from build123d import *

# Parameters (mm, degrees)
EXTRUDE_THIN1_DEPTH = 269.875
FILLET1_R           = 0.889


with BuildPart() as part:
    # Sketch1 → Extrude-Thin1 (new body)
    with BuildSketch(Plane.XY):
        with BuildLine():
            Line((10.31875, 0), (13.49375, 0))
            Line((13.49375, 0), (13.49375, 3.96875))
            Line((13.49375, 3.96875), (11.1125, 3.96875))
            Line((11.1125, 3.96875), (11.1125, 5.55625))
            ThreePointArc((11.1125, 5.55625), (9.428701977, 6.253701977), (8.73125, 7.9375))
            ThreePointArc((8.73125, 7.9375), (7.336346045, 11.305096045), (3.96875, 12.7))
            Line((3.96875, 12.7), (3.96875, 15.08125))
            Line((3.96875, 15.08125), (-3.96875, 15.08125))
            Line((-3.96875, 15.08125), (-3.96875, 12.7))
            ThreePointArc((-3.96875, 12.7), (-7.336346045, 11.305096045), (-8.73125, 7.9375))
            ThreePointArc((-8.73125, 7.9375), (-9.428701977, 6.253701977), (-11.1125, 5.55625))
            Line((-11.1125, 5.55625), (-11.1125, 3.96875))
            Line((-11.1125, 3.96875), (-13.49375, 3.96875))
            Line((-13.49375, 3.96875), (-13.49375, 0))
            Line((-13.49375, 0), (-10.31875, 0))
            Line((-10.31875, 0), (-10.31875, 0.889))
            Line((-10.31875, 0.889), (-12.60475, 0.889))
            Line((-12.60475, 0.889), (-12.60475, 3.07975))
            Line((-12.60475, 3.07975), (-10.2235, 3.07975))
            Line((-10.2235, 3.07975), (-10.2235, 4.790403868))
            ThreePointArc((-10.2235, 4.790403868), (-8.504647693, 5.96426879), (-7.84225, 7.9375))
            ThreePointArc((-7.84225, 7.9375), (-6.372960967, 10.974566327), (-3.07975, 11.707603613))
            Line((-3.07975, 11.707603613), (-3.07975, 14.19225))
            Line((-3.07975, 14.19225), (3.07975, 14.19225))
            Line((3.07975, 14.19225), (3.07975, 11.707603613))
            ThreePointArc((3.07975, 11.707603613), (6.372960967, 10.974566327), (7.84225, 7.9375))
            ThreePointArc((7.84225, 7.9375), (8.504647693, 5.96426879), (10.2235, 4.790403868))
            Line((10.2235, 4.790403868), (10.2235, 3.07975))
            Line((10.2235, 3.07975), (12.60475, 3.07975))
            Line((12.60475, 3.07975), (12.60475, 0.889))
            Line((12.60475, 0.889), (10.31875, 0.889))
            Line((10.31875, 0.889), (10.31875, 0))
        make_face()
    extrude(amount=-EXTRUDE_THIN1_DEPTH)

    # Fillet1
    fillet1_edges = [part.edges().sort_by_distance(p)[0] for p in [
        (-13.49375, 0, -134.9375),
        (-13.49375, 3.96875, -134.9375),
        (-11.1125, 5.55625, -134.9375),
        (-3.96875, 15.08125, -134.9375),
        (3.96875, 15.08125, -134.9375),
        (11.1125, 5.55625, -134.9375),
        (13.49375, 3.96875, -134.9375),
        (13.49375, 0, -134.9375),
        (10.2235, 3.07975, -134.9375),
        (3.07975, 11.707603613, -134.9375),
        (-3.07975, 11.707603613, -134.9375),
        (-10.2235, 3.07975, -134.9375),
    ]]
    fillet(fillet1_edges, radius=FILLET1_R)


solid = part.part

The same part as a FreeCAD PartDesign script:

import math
import FreeCAD as App
import Part
import Sketcher
Q = App.Units.Quantity


def edges_at(feature, points):
    """Names of the edges that pass closest to the given points."""
    edges = feature.Shape.Edges
    near = lambda p: min(range(len(edges)), key=lambda i: edges[i].distToShape(Part.Vertex(*p))[0])
    return sorted({f"Edge{near(p) + 1}" for p in points})

doc = App.newDocument("Part")
params = doc.addObject("Spreadsheet::Sheet", "Params")
for row, (alias, value) in enumerate([
    ("sketch1_radius", "0.09375 in"),
    ("sketch1_radius2", "0.1875 in"),
    ("sketch1_width", "0.09 in"),
    ("sketch1_width2", "0.125 in"),
    ("sketch1_width3", "0.09375 in"),
    ("pad1_length", "10.625 in"),
    ("fillet_radius", "0.035 in"),
], start=1):
    params.set(f"A{row}", alias)
    params.set(f"B{row}", "=" + value)
    params.setAlias(f"B{row}", alias)

body = doc.addObject("PartDesign::Body", "Body")

# Sketch on XY plane
sketch1 = body.newObject("Sketcher::SketchObject", "Sketch")
sketch1.AttachmentSupport = (doc.getObject("XY_Plane"), [""])
sketch1.MapMode = "FlatFace"
sketch1.addGeometry(Part.LineSegment(App.Vector(10.3, 0, 0), App.Vector(13.5, 0, 0)), False)
sketch1.addGeometry(Part.LineSegment(App.Vector(13.5, 0, 0), App.Vector(13.5, 4, 0)), False)
sketch1.addGeometry(Part.LineSegment(App.Vector(13.5, 4, 0), App.Vector(11.1, 4, 0)), False)
sketch1.addGeometry(Part.LineSegment(App.Vector(11.1, 4, 0), App.Vector(11.1, 5.6, 0)), False)
sketch1.addGeometry(Part.ArcOfCircle(Part.Circle(App.Vector(11.1, 7.9, 0), App.Vector(0, 0, 1), 2.4), math.radians(180), math.radians(270)), False)
sketch1.addGeometry(Part.ArcOfCircle(Part.Circle(App.Vector(4, 7.9, 0), App.Vector(0, 0, 1), 4.8), math.radians(0), math.radians(90)), False)
sketch1.addGeometry(Part.LineSegment(App.Vector(4, 12.7, 0), App.Vector(4, 15.1, 0)), False)
sketch1.addGeometry(Part.LineSegment(App.Vector(4, 15.1, 0), App.Vector(-4, 15.1, 0)), False)
sketch1.addGeometry(Part.LineSegment(App.Vector(-4, 15.1, 0), App.Vector(-4, 12.7, 0)), False)
sketch1.addGeometry(Part.ArcOfCircle(Part.Circle(App.Vector(-4, 7.9, 0), App.Vector(0, 0, 1), 4.8), math.radians(90), math.radians(180)), False)
sketch1.addGeometry(Part.ArcOfCircle(Part.Circle(App.Vector(-11.1, 7.9, 0), App.Vector(0, 0, 1), 2.4), math.radians(-90), math.radians(0)), False)
sketch1.addGeometry(Part.LineSegment(App.Vector(-11.1, 5.6, 0), App.Vector(-11.1, 4, 0)), False)
sketch1.addGeometry(Part.LineSegment(App.Vector(-11.1, 4, 0), App.Vector(-13.5, 4, 0)), False)
sketch1.addGeometry(Part.LineSegment(App.Vector(-13.5, 4, 0), App.Vector(-13.5, 0, 0)), False)
sketch1.addGeometry(Part.LineSegment(App.Vector(-13.5, 0, 0), App.Vector(-10.3, 0, 0)), False)
sketch1.addGeometry(Part.LineSegment(App.Vector(-10.3, 0, 0), App.Vector(-10.3, 0.9, 0)), False)
sketch1.addGeometry(Part.LineSegment(App.Vector(-10.3, 0.9, 0), App.Vector(-12.6, 0.9, 0)), False)
sketch1.addGeometry(Part.LineSegment(App.Vector(-12.6, 0.9, 0), App.Vector(-12.6, 3.1, 0)), False)
sketch1.addGeometry(Part.LineSegment(App.Vector(-12.6, 3.1, 0), App.Vector(-10.2, 3.1, 0)), False)
sketch1.addGeometry(Part.LineSegment(App.Vector(-10.2, 3.1, 0), App.Vector(-10.2, 4.8, 0)), False)
sketch1.addGeometry(Part.ArcOfCircle(Part.Circle(App.Vector(-11.1, 7.9, 0), App.Vector(0, 0, 1), 3.3), math.radians(-74), math.radians(0)), False)
sketch1.addGeometry(Part.ArcOfCircle(Part.Circle(App.Vector(-4, 7.9, 0), App.Vector(0, 0, 1), 3.9), math.radians(77), math.radians(180)), False)
sketch1.addGeometry(Part.LineSegment(App.Vector(-3.1, 11.7, 0), App.Vector(-3.1, 14.2, 0)), False)
sketch1.addGeometry(Part.LineSegment(App.Vector(-3.1, 14.2, 0), App.Vector(3.1, 14.2, 0)), False)
sketch1.addGeometry(Part.LineSegment(App.Vector(3.1, 14.2, 0), App.Vector(3.1, 11.7, 0)), False)
sketch1.addGeometry(Part.ArcOfCircle(Part.Circle(App.Vector(4, 7.9, 0), App.Vector(0, 0, 1), 3.9), math.radians(0), math.radians(103)), False)
sketch1.addGeometry(Part.ArcOfCircle(Part.Circle(App.Vector(11.1, 7.9, 0), App.Vector(0, 0, 1), 3.3), math.radians(180), math.radians(254)), False)
sketch1.addGeometry(Part.LineSegment(App.Vector(10.2, 4.8, 0), App.Vector(10.2, 3.1, 0)), False)
sketch1.addGeometry(Part.LineSegment(App.Vector(10.2, 3.1, 0), App.Vector(12.6, 3.1, 0)), False)
sketch1.addGeometry(Part.LineSegment(App.Vector(12.6, 3.1, 0), App.Vector(12.6, 0.9, 0)), False)
sketch1.addGeometry(Part.LineSegment(App.Vector(12.6, 0.9, 0), App.Vector(10.3, 0.9, 0)), False)
sketch1.addGeometry(Part.LineSegment(App.Vector(10.3, 0.9, 0), App.Vector(10.3, 0, 0)), False)
sketch1.addConstraint(Sketcher.Constraint("Coincident", 0, 2, 1, 1))
sketch1.addConstraint(Sketcher.Constraint("Coincident", 1, 2, 2, 1))
sketch1.addConstraint(Sketcher.Constraint("Coincident", 2, 2, 3, 1))
sketch1.addConstraint(Sketcher.Constraint("Coincident", 3, 2, 4, 2))
sketch1.addConstraint(Sketcher.Constraint("Tangent", 4, 1, 5, 1))
sketch1.addConstraint(Sketcher.Constraint("Coincident", 5, 2, 6, 1))
sketch1.addConstraint(Sketcher.Constraint("Coincident", 6, 2, 7, 1))
sketch1.addConstraint(Sketcher.Constraint("Coincident", 7, 2, 8, 1))
sketch1.addConstraint(Sketcher.Constraint("Coincident", 8, 2, 9, 1))
sketch1.addConstraint(Sketcher.Constraint("Tangent", 9, 2, 10, 2))
sketch1.addConstraint(Sketcher.Constraint("Coincident", 10, 1, 11, 1))
sketch1.addConstraint(Sketcher.Constraint("Coincident", 11, 2, 12, 1))
sketch1.addConstraint(Sketcher.Constraint("Coincident", 12, 2, 13, 1))
sketch1.addConstraint(Sketcher.Constraint("Coincident", 13, 2, 14, 1))
sketch1.addConstraint(Sketcher.Constraint("Coincident", 14, 2, 15, 1))
sketch1.addConstraint(Sketcher.Constraint("Coincident", 15, 2, 16, 1))
sketch1.addConstraint(Sketcher.Constraint("Coincident", 16, 2, 17, 1))
sketch1.addConstraint(Sketcher.Constraint("Coincident", 17, 2, 18, 1))
sketch1.addConstraint(Sketcher.Constraint("Coincident", 18, 2, 19, 1))
sketch1.addConstraint(Sketcher.Constraint("Coincident", 19, 2, 20, 1))
sketch1.addConstraint(Sketcher.Constraint("Tangent", 20, 2, 21, 2))
sketch1.addConstraint(Sketcher.Constraint("Coincident", 21, 1, 22, 1))
sketch1.addConstraint(Sketcher.Constraint("Coincident", 22, 2, 23, 1))
sketch1.addConstraint(Sketcher.Constraint("Coincident", 23, 2, 24, 1))
sketch1.addConstraint(Sketcher.Constraint("Coincident", 24, 2, 25, 2))
sketch1.addConstraint(Sketcher.Constraint("Tangent", 25, 1, 26, 1))
sketch1.addConstraint(Sketcher.Constraint("Coincident", 26, 2, 27, 1))
sketch1.addConstraint(Sketcher.Constraint("Coincident", 27, 2, 28, 1))
sketch1.addConstraint(Sketcher.Constraint("Coincident", 28, 2, 29, 1))
sketch1.addConstraint(Sketcher.Constraint("Coincident", 29, 2, 30, 1))
sketch1.addConstraint(Sketcher.Constraint("Coincident", 30, 2, 31, 1))
sketch1.addConstraint(Sketcher.Constraint("Coincident", 31, 2, 0, 1))
sketch1.addConstraint(Sketcher.Constraint("Horizontal", 0))
sketch1.addConstraint(Sketcher.Constraint("Vertical", 1))
sketch1.addConstraint(Sketcher.Constraint("Horizontal", 2))
sketch1.addConstraint(Sketcher.Constraint("Vertical", 3))
sketch1.addConstraint(Sketcher.Constraint("Vertical", 6))
sketch1.addConstraint(Sketcher.Constraint("Horizontal", 7))
sketch1.addConstraint(Sketcher.Constraint("Vertical", 8))
sketch1.addConstraint(Sketcher.Constraint("Vertical", 11))
sketch1.addConstraint(Sketcher.Constraint("Horizontal", 12))
sketch1.addConstraint(Sketcher.Constraint("Vertical", 13))
sketch1.addConstraint(Sketcher.Constraint("Horizontal", 14))
sketch1.addConstraint(Sketcher.Constraint("Vertical", 15))
sketch1.addConstraint(Sketcher.Constraint("Horizontal", 16))
sketch1.addConstraint(Sketcher.Constraint("Vertical", 17))
sketch1.addConstraint(Sketcher.Constraint("Horizontal", 18))
sketch1.addConstraint(Sketcher.Constraint("Vertical", 19))
sketch1.addConstraint(Sketcher.Constraint("Vertical", 22))
sketch1.addConstraint(Sketcher.Constraint("Horizontal", 23))
sketch1.addConstraint(Sketcher.Constraint("Vertical", 24))
sketch1.addConstraint(Sketcher.Constraint("Vertical", 27))
sketch1.addConstraint(Sketcher.Constraint("Horizontal", 28))
sketch1.addConstraint(Sketcher.Constraint("Vertical", 29))
sketch1.addConstraint(Sketcher.Constraint("Horizontal", 30))
sketch1.addConstraint(Sketcher.Constraint("Vertical", 31))
sketch1.addConstraint(Sketcher.Constraint("Coincident", 20, 3, 10, 3))
sketch1.addConstraint(Sketcher.Constraint("Coincident", 21, 3, 9, 3))
sketch1.addConstraint(Sketcher.Constraint("Coincident", 25, 3, 5, 3))
sketch1.addConstraint(Sketcher.Constraint("Coincident", 26, 3, 4, 3))
sketch1.addConstraint(Sketcher.Constraint("Equal", 5, 9))
sketch1.addConstraint(Sketcher.Constraint("Equal", 4, 10))
sketch1.addConstraint(Sketcher.Constraint("Equal", 21, 25))
sketch1.addConstraint(Sketcher.Constraint("Symmetric", 0, 2, 13, 2, -1, 1))
sketch1.addConstraint(Sketcher.Constraint("Symmetric", 5, 3, 9, 3, -2))
sketch1.addConstraint(Sketcher.Constraint("Symmetric", 3, 2, 10, 1, -2))
sketch1.addConstraint(Sketcher.Constraint("Symmetric", 18, 2, 27, 2, -2))
sketch1.addConstraint(Sketcher.Constraint("Symmetric", 16, 2, 29, 2, -2))
sketch1.addConstraint(Sketcher.Constraint("Symmetric", 14, 2, 31, 2, -2))
sketch1.addConstraint(Sketcher.Constraint("Horizontal", 4, 3, 5, 3))
sketch1.addConstraint(Sketcher.Constraint("Horizontal", 2, 2, 11, 2))
sketch1.addConstraint(Sketcher.Constraint("Horizontal", 21, 1, 24, 2))
sketch1.addConstraint(Sketcher.Constraint("Vertical", 26, 3, 2, 2))
sketch1.addConstraint(Sketcher.Constraint("Vertical", 25, 3, 5, 2))
sketch1.addConstraint(Sketcher.Constraint("Vertical", 21, 3, 7, 2))
sketch1.addConstraint(Sketcher.Constraint("Equal", 12, 18))
sketch1.addConstraint(Sketcher.Constraint("Equal", 28, 6))
sketch1.addConstraint(Sketcher.Constraint("Radius", 4, Q("0.09375 in")))
sketch1.addConstraint(Sketcher.Constraint("Radius", 5, Q("0.1875 in")))
sketch1.addConstraint(Sketcher.Constraint("DistanceX", 16, 2, 16, 1, Q("0.09 in")))
sketch1.addConstraint(Sketcher.Constraint("DistanceY", -1, 1, 5, 2, Q("0.5 in")))
sketch1.addConstraint(Sketcher.Constraint("Radius", 21, Q("0.1525 in")))
sketch1.addConstraint(Sketcher.Constraint("DistanceX", 0, 1, 0, 2, Q("0.125 in")))
sketch1.addConstraint(Sketcher.Constraint("DistanceX", 2, 2, 2, 1, Q("0.09375 in")))
sketch1.addConstraint(Sketcher.Constraint("DistanceX", 7, 2, 7, 1, Q("0.3125 in")))
sketch1.addConstraint(Sketcher.Constraint("DistanceY", 1, 1, 1, 2, Q("0.15625 in")))
sketch1.addConstraint(Sketcher.Constraint("DistanceY", 15, 1, 15, 2, Q("0.035 in")))
sketch1.addConstraint(Sketcher.Constraint("DistanceX", 23, 1, 23, 2, Q("0.2425 in")))
sketch1.addConstraint(Sketcher.Constraint("DistanceY", 17, 2, 12, 2, Q("0.035 in")))
sketch1.addConstraint(Sketcher.Constraint("DistanceY", 22, 2, 7, 2, Q("0.035 in")))
sketch1.setExpression("Constraints[77]", "Params.sketch1_radius")
sketch1.setExpression("Constraints[78]", "Params.sketch1_radius2")
sketch1.setExpression("Constraints[79]", "Params.sketch1_width")
sketch1.setExpression("Constraints[82]", "Params.sketch1_width2")
sketch1.setExpression("Constraints[83]", "Params.sketch1_width3")
pad1 = body.newObject("PartDesign::Pad", "Pad")
pad1.Profile = sketch1
pad1.setExpression("Length", "Params.pad1_length")
pad1.Reversed = True
doc.recompute()

fillet = body.newObject("PartDesign::Fillet", "Fillet")
fillet.Base = (pad1, edges_at(pad1, [
    (-13.494, 0, -134.938),
    (-13.494, 3.969, -134.938),
    (-11.113, 5.556, -134.938),
    (-3.969, 15.081, -134.938),
    (3.969, 15.081, -134.938),
    (11.113, 5.556, -134.938),
    (13.494, 3.969, -134.938),
    (13.494, 0, -134.938),
    (10.223, 3.08, -134.938),
    (3.08, 11.708, -134.938),
    (-3.08, 11.708, -134.938),
    (-10.223, 3.08, -134.938),
]))
fillet.setExpression("Radius", "Params.fillet_radius")

doc.recompute()
